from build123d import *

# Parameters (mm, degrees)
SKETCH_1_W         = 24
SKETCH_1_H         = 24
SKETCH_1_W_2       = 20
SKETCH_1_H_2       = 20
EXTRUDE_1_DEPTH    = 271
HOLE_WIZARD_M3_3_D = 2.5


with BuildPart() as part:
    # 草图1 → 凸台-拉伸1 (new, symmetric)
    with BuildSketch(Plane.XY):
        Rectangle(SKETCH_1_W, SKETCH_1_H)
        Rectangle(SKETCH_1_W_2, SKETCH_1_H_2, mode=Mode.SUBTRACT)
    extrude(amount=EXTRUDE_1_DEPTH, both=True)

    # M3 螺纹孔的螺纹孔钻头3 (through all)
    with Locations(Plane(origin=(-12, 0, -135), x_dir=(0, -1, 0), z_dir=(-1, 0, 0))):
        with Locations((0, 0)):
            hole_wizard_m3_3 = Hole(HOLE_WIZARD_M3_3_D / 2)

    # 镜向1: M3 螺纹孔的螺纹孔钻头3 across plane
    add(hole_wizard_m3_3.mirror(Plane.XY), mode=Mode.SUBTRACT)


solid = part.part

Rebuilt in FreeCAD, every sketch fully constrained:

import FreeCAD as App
import Part
import Sketcher


def add_polygon(sketch, points):
    """Adds a closed chain of lines whose ends are joined by coincident constraints."""
    first, n = sketch.GeometryCount, len(points)
    for a, b in zip(points, points[1:] + points[:1]):
        sketch.addGeometry(Part.LineSegment(App.Vector(*a, 0), App.Vector(*b, 0)), False)
    for i in range(n):
        sketch.addConstraint(Sketcher.Constraint("Coincident", first + i, 2, first + (i + 1) % n, 1))

doc = App.newDocument("Part")
body = doc.addObject("PartDesign::Body", "Body")

# Sketch on XY plane
sketch1 = body.newObject("Sketcher::SketchObject", "Sketch")
sketch1.AttachmentSupport = (doc.getObject("XY_Plane"), [""])
sketch1.MapMode = "FlatFace"
add_polygon(sketch1, [(-12, 12), (-12, -12), (12, -12), (12, 12)])  # lines 0-3
add_polygon(sketch1, [(10, -10), (-10, -10), (-10, 10), (10, 10)])  # lines 4-7
sketch1.addConstraint([
    Sketcher.Constraint("Vertical", 0),
    Sketcher.Constraint("Horizontal", 1),
    Sketcher.Constraint("Vertical", 2),
    Sketcher.Constraint("Horizontal", 3),
    Sketcher.Constraint("Horizontal", 4),
    Sketcher.Constraint("Vertical", 5),
    Sketcher.Constraint("Horizontal", 6),
    Sketcher.Constraint("Vertical", 7),
    Sketcher.Constraint("Symmetric", 0, 2, 2, 2, -1, 1),
    Sketcher.Constraint("Symmetric", 4, 2, 6, 2, -1, 1),
    Sketcher.Constraint("Equal", 3, 0),
    Sketcher.Constraint("Equal", 6, 5),
    Sketcher.Constraint("DistanceX", 1, 1, 1, 2, 24.0),
    Sketcher.Constraint("DistanceX", 4, 2, 4, 1, 20.0),
])
pad1 = body.newObject("PartDesign::Pad", "Pad")
pad1.Profile = sketch1
pad1.Length = 542
pad1.Midplane = True

# Sketch on YZ plane
sketch2 = body.newObject("Sketcher::SketchObject", "Sketch001")
sketch2.AttachmentSupport = (doc.getObject("YZ_Plane"), [""])
sketch2.MapMode = "FlatFace"
sketch2.AttachmentOffset = App.Placement(App.Vector(0, 0, -12), App.Rotation())
sketch2.addGeometry(Part.Circle(App.Vector(0, -135, 0), App.Vector(0, 0, 1), 1.2), False)
sketch2.addConstraint([
    Sketcher.Constraint("PointOnObject", 0, 3, -2),
    Sketcher.Constraint("Diameter", 0, 2.5),
    Sketcher.Constraint("DistanceY", 0, 3, -1, 1, 135.0),
])
doc.recompute()
hole = body.newObject("PartDesign::Hole", "Hole")
hole.Profile = sketch2
hole.ThreadType = "None"
hole.Diameter = 2.5
hole.DepthType = "ThroughAll"
hole.Reversed = True
doc.recompute()

mirrored = body.newObject("PartDesign::Mirrored", "Mirrored")
mirrored.Originals = [hole]
mirrored.MirrorPlane = (doc.getObject("XY_Plane"), [""])
body.Tip = mirrored

doc.recompute()
